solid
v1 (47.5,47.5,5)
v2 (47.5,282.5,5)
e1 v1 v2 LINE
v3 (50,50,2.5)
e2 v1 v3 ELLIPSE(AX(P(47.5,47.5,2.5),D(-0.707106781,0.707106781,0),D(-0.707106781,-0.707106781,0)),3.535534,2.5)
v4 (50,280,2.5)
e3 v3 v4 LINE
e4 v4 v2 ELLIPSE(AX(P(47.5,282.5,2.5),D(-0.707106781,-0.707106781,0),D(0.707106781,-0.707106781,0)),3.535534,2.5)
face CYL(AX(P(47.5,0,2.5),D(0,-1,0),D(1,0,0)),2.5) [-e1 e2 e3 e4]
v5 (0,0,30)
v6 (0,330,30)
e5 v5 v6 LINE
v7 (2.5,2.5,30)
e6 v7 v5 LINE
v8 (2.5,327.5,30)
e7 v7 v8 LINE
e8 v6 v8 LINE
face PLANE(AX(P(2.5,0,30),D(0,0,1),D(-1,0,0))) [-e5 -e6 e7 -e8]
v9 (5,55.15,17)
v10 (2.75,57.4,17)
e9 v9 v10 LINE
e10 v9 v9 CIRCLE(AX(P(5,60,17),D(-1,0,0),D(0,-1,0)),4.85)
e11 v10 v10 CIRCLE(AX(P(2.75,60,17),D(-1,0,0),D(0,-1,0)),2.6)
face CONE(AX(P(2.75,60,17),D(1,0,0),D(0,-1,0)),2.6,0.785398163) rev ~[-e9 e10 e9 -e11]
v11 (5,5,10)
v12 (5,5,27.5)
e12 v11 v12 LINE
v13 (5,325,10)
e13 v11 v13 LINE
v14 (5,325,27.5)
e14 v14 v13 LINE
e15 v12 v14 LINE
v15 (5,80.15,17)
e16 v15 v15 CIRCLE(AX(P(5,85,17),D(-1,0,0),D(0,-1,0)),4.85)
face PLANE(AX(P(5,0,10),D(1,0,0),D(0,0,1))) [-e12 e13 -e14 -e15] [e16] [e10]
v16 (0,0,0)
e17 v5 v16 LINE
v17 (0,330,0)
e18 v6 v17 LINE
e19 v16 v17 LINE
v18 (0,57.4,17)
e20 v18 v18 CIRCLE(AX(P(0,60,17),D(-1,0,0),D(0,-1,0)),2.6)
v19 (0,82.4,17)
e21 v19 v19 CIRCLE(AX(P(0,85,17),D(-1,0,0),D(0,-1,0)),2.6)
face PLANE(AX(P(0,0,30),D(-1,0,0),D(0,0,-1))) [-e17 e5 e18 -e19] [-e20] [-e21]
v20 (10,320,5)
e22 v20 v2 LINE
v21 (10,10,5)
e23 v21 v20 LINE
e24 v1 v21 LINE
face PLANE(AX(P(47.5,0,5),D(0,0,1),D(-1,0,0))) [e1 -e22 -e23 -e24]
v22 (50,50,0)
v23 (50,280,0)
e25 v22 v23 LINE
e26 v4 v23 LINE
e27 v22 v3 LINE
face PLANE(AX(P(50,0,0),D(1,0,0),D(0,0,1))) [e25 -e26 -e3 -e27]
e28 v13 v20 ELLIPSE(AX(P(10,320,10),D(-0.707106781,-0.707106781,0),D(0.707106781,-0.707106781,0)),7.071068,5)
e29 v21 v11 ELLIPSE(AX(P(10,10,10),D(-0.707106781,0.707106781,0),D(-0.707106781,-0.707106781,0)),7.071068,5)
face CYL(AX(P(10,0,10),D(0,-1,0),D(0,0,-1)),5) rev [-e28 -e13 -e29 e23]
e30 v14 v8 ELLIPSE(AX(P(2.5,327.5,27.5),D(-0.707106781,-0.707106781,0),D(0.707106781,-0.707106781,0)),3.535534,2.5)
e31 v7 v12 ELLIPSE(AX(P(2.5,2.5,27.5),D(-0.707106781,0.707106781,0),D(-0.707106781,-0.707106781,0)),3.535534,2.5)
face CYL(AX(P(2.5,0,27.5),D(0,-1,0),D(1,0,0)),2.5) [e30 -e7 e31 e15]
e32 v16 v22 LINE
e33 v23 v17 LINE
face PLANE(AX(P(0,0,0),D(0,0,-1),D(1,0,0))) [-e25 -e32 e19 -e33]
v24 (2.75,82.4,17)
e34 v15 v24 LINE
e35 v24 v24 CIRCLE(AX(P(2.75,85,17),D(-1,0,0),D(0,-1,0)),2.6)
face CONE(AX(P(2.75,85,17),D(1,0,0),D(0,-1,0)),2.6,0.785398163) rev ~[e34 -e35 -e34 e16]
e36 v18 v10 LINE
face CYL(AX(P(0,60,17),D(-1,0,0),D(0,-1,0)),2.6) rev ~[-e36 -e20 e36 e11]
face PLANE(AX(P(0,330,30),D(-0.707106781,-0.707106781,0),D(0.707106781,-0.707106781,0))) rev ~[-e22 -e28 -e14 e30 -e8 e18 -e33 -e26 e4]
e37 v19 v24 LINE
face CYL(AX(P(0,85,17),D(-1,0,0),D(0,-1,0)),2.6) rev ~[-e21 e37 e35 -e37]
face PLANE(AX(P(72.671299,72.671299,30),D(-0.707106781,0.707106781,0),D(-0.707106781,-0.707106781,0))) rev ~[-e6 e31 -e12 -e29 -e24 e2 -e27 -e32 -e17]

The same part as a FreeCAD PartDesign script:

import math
import FreeCAD as App
import Part
import Sketcher


def edges_at(feature, points):
    """Names of the edges that pass closest to the given points."""
    edges = feature.Shape.Edges
    near = lambda p: min(range(len(edges)), key=lambda i: edges[i].distToShape(Part.Vertex(*p))[0])
    return sorted({f"Edge{near(p) + 1}" for p in points})


def add_polygon(sketch, points):
    """Adds a closed chain of lines whose ends are joined by coincident constraints."""
    first, n = sketch.GeometryCount, len(points)
    for a, b in zip(points, points[1:] + points[:1]):
        sketch.addGeometry(Part.LineSegment(App.Vector(*a, 0), App.Vector(*b, 0)), False)
    for i in range(n):
        sketch.addConstraint(Sketcher.Constraint("Coincident", first + i, 2, first + (i + 1) % n, 1))

doc = App.newDocument("Part")
body = doc.addObject("PartDesign::Body", "Body")

# Sketch on XZ plane
sketch1 = body.newObject("Sketcher::SketchObject", "Sketch")
sketch1.AttachmentSupport = (doc.getObject("XZ_Plane"), [""])
sketch1.MapMode = "FlatFace"
sketch1.addGeometry([
    Part.LineSegment(App.Vector(0, 0, 0), App.Vector(50, 0, 0)),  # 0
    Part.LineSegment(App.Vector(50, 0, 0), App.Vector(50, 2.5, 0)),  # 1
    Part.ArcOfCircle(Part.Circle(App.Vector(47.5, 2.5, 0), App.Vector(0, 0, 1), 2.5), math.radians(0), math.radians(90)),  # 2
    Part.LineSegment(App.Vector(47.5, 5, 0), App.Vector(10, 5, 0)),  # 3
    Part.ArcOfCircle(Part.Circle(App.Vector(10, 10, 0), App.Vector(0, 0, 1), 5), math.radians(180), math.radians(270)),  # 4
    Part.LineSegment(App.Vector(5, 10, 0), App.Vector(5, 27.5, 0)),  # 5
    Part.ArcOfCircle(Part.Circle(App.Vector(2.5, 27.5, 0), App.Vector(0, 0, 1), 2.5), math.radians(0), math.radians(90)),  # 6
    Part.LineSegment(App.Vector(2.5, 30, 0), App.Vector(0, 30, 0)),  # 7
    Part.LineSegment(App.Vector(0, 30, 0), App.Vector(0, 0, 0)),  # 8
], False)
sketch1.addConstraint([
    Sketcher.Constraint("Coincident", 0, 2, 1, 1),
    Sketcher.Constraint("Tangent", 1, 2, 2, 1),
    Sketcher.Constraint("Tangent", 2, 2, 3, 1),
    Sketcher.Constraint("Tangent", 3, 2, 4, 2),
    Sketcher.Constraint("Tangent", 4, 1, 5, 1),
    Sketcher.Constraint("Tangent", 5, 2, 6, 1),
    Sketcher.Constraint("Tangent", 6, 2, 7, 1),
    Sketcher.Constraint("Coincident", 7, 2, 8, 1),
    Sketcher.Constraint("Coincident", 8, 2, 0, 1),
    Sketcher.Constraint("Horizontal", 0),
    Sketcher.Constraint("Vertical", 1),
    Sketcher.Constraint("Horizontal", 3),
    Sketcher.Constraint("Vertical", 5),
    Sketcher.Constraint("Horizontal", 7),
    Sketcher.Constraint("Vertical", 8),
    Sketcher.Constraint("Coincident", 8, 2, -1, 1),
    Sketcher.Constraint("Equal", 2, 6),
    Sketcher.Constraint("Equal", 7, 1),
    Sketcher.Constraint("Radius", 4, 5.0),
    Sketcher.Constraint("Radius", 2, 2.5),
    Sketcher.Constraint("DistanceX", 0, 1, 0, 2, 50.0),
    Sketcher.Constraint("DistanceY", 8, 2, 8, 1, 30.0),
    Sketcher.Constraint("DistanceX", 3, 2, 3, 1, 37.5),
])
pad1 = body.newObject("PartDesign::Pad", "Pad")
pad1.Profile = sketch1
pad1.Length = 330
pad1.Reversed = True

# Sketch on XY plane
sketch2 = body.newObject("Sketcher::SketchObject", "Sketch001")
sketch2.AttachmentSupport = (doc.getObject("XY_Plane"), [""])
sketch2.MapMode = "FlatFace"
sketch2.AttachmentOffset = App.Placement(App.Vector(0, 0, 30), App.Rotation())
add_polygon(sketch2, [(72.671299, 257.328701), (72.671299, 330), (0, 330)])  # lines 0-2
add_polygon(sketch2, [(72.671299, 72.671299), (0, 0), (72.671299, 0)])  # lines 3-5
sketch2.addConstraint([
    Sketcher.Constraint("Vertical", 0),
    Sketcher.Constraint("Horizontal", 1),
    Sketcher.Constraint("Horizontal", 4),
    Sketcher.Constraint("Vertical", 5),
    Sketcher.Constraint("Coincident", 3, 2, -1, 1),
    Sketcher.Constraint("PointOnObject", 1, 2, -2),
    Sketcher.Constraint("Perpendicular", 2, 3),
    Sketcher.Constraint("Vertical", 2, 2, 4, 2),
    Sketcher.Constraint("Equal", 4, 0),
    Sketcher.Constraint("DistanceY", -1, 1, 0, 2, 330.0),
    Sketcher.Constraint("DistanceX", 1, 2, 1, 1, 72.671299),
])
pocket1 = body.newObject("PartDesign::Pocket", "Pocket")
pocket1.Profile = sketch2
pocket1.Type = "ThroughAll"

# Sketch on YZ plane
sketch3 = body.newObject("Sketcher::SketchObject", "Sketch002")
sketch3.AttachmentSupport = (doc.getObject("YZ_Plane"), [""])
sketch3.MapMode = "FlatFace"
sketch3.addGeometry([
    Part.Circle(App.Vector(85, 17, 0), App.Vector(0, 0, 1), 2.6),
    Part.Circle(App.Vector(60, 17, 0), App.Vector(0, 0, 1), 2.6),
], False)
sketch3.addConstraint([
    Sketcher.Constraint("Equal", 0, 1),
    Sketcher.Constraint("Horizontal", 0, 3, 1, 3),
    Sketcher.Constraint("Diameter", 0, 5.2),
    Sketcher.Constraint("DistanceX", -1, 1, 0, 3, 85.0),
    Sketcher.Constraint("DistanceY", -1, 1, 0, 3, 17.0),
    Sketcher.Constraint("DistanceX", -1, 1, 1, 3, 60.0),
])
pocket2 = body.newObject("PartDesign::Pocket", "Pocket001")
pocket2.Profile = sketch3
pocket2.Type = "ThroughAll"
pocket2.Reversed = True
doc.recompute()

chamfer = body.newObject("PartDesign::Chamfer", "Chamfer")
chamfer.Base = (pocket2, edges_at(pocket2, [(5, 62.6, 17), (5, 87.6, 17)]))
chamfer.Size = 2.25

doc.recompute()
